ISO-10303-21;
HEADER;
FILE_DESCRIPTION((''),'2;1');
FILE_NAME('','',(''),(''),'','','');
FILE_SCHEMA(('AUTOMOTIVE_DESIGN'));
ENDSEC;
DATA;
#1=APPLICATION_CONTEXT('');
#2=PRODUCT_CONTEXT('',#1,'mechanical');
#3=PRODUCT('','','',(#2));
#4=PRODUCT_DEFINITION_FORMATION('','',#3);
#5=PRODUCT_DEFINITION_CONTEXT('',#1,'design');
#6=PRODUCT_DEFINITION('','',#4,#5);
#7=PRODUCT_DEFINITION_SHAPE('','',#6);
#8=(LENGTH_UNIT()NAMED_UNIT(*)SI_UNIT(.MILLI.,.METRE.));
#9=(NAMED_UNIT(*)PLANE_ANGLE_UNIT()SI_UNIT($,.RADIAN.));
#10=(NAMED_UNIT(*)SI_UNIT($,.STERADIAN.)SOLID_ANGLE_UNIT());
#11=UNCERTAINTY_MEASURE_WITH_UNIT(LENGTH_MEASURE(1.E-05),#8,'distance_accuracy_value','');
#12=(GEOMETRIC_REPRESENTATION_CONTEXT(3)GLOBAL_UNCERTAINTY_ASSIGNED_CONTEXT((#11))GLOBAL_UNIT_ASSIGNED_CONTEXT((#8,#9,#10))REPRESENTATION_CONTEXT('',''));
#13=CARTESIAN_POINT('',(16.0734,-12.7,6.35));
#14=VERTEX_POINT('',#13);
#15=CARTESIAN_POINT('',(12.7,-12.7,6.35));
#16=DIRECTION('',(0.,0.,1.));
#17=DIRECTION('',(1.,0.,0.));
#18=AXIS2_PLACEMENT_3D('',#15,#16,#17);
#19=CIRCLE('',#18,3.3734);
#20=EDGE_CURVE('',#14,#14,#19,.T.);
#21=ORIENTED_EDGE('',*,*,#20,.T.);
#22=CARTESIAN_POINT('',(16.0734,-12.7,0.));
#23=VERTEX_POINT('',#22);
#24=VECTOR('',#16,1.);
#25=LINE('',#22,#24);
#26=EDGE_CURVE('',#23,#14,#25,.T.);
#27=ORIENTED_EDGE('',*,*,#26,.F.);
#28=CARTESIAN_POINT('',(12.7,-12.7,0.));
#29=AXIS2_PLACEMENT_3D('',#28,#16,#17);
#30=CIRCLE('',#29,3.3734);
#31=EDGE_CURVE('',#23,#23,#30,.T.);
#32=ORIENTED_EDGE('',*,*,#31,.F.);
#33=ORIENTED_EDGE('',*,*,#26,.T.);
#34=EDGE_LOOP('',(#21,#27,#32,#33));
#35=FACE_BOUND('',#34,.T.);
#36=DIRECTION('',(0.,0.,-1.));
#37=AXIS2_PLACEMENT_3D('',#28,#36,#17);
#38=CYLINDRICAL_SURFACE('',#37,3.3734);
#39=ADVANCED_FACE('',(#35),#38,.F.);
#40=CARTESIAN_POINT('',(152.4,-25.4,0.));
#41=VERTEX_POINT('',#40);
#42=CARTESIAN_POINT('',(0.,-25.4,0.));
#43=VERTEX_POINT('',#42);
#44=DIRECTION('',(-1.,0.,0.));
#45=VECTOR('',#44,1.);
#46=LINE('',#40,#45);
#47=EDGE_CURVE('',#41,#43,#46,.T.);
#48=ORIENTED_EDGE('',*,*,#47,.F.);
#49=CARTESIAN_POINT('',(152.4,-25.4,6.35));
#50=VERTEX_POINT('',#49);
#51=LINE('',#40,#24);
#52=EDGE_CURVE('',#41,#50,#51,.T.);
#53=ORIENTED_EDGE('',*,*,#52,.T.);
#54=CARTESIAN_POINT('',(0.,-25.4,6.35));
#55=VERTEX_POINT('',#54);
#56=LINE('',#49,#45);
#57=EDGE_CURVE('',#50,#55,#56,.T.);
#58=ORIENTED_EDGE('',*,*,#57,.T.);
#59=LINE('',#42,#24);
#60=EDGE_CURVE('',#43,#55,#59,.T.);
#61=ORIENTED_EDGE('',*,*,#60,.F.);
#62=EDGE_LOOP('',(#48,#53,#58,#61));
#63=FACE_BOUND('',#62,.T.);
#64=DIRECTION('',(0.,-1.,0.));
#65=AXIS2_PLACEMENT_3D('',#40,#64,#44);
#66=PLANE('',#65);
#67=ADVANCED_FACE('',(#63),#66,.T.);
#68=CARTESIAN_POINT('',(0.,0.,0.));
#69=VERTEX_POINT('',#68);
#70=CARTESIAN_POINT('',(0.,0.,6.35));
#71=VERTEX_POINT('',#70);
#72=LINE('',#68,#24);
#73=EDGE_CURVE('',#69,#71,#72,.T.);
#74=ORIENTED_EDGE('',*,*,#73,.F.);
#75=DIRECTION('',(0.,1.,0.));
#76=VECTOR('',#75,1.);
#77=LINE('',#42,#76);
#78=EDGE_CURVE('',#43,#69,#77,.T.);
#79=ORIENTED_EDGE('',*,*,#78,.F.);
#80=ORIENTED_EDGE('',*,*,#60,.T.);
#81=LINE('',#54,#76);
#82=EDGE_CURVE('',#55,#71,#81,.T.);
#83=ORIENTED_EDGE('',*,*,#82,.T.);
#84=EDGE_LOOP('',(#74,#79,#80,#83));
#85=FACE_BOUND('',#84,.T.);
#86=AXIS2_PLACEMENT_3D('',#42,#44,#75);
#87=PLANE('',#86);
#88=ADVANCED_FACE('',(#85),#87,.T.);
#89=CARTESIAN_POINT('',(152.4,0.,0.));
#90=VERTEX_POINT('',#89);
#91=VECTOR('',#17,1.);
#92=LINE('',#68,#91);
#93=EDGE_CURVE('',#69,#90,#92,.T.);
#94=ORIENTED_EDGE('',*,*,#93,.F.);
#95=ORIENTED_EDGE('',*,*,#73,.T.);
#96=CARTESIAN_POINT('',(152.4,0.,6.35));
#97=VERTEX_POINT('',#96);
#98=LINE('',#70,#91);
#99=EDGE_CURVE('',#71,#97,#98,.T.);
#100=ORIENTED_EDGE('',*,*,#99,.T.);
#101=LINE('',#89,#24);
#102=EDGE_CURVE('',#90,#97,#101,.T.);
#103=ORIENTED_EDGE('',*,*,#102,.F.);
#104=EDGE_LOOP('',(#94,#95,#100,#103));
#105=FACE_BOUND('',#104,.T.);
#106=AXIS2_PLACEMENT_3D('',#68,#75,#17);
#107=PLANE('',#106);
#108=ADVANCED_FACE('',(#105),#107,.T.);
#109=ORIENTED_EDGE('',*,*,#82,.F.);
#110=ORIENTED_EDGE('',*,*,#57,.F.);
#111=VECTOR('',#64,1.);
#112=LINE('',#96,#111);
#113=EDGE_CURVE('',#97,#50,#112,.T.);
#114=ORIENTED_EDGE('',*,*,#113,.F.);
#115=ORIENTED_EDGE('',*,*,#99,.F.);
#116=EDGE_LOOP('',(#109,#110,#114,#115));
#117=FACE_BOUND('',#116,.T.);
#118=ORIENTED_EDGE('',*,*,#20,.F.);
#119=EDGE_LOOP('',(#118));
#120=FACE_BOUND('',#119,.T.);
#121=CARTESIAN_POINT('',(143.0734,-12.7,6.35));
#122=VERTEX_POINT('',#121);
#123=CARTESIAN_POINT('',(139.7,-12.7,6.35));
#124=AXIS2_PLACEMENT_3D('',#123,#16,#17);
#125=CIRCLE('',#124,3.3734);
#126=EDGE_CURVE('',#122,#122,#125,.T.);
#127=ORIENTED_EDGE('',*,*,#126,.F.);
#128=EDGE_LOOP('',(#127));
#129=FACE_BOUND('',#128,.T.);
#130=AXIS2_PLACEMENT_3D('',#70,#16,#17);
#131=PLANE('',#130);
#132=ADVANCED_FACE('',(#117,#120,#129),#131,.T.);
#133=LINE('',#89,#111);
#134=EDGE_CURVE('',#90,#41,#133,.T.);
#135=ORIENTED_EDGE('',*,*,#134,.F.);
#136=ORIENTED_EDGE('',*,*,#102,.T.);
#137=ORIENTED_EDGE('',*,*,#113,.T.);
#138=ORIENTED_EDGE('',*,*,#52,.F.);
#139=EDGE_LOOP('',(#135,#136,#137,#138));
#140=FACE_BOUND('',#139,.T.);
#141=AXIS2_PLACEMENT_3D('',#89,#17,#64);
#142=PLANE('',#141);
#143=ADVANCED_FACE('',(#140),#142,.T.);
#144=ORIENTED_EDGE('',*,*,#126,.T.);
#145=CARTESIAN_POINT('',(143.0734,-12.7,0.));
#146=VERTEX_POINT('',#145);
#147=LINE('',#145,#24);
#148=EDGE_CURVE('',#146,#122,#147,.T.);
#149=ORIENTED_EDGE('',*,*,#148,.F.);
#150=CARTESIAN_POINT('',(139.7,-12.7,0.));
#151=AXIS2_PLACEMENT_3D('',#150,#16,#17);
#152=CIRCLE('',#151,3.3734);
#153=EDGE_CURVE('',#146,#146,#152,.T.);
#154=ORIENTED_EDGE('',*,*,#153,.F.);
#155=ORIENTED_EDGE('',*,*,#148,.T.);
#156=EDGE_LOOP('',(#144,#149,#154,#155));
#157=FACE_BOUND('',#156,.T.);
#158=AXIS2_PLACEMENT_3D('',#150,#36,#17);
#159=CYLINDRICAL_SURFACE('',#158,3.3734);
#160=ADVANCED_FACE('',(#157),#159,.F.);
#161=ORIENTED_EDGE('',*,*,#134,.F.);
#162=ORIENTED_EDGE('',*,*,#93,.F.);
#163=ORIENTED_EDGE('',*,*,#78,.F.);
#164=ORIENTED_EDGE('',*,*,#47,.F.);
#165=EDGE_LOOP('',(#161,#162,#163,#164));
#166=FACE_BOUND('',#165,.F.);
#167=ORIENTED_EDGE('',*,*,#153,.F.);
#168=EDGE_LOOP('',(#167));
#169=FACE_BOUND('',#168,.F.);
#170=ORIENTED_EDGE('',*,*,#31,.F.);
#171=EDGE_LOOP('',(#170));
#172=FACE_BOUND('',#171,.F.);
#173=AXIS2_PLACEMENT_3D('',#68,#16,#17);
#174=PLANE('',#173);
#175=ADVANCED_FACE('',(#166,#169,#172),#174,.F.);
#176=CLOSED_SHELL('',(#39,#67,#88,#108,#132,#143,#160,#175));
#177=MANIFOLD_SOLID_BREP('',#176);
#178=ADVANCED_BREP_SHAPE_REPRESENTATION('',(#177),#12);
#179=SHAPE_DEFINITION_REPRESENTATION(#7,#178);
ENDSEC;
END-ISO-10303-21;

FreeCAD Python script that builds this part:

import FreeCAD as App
import Part
import Sketcher
from FreeCAD import Vector
Q = App.Units.Quantity


def add_polygon(sketch, points):
    """Adds a closed chain of lines whose ends are joined by coincident constraints."""
    first, n = sketch.GeometryCount, len(points)
    for a, b in zip(points, points[1:] + points[:1]):
        sketch.addGeometry(Part.LineSegment(App.Vector(*a, 0), App.Vector(*b, 0)), False)
    for i in range(n):
        sketch.addConstraint(Sketcher.Constraint("Coincident", first + i, 2, first + (i + 1) % n, 1))

doc = App.newDocument("Part")
body = doc.addObject("PartDesign::Body", "Body")

# Sketch on XY plane
sketch1 = body.newObject("Sketcher::SketchObject", "Sketch")
sketch1.AttachmentSupport = (doc.getObject("XY_Plane"), [""])
sketch1.MapMode = "FlatFace"
add_polygon(sketch1, [(152.4, 0), (0, 0), (0, -25.4), (152.4, -25.4)])  # lines 0-3
sketch1.addGeometry(Part.Circle(Vector(12.7, -12.7, 0), Vector(0, 0, 1), 3.4), False)  # 4
sketch1.addGeometry(Part.Circle(Vector(139.7, -12.7, 0), Vector(0, 0, 1), 3.4), False)  # 5
sketch1.addConstraint(Sketcher.Constraint("Horizontal", 0))
sketch1.addConstraint(Sketcher.Constraint("Vertical", 1))
sketch1.addConstraint(Sketcher.Constraint("Horizontal", 2))
sketch1.addConstraint(Sketcher.Constraint("Vertical", 3))
sketch1.addConstraint(Sketcher.Constraint("Coincident", 0, 2, -1, 1))
sketch1.addConstraint(Sketcher.Constraint("Equal", 4, 5))
sketch1.addConstraint(Sketcher.Constraint("Horizontal", 4, 3, 5, 3))
sketch1.addConstraint(Sketcher.Constraint("DistanceX", 0, 2, 0, 1, Q("6 in")))
sketch1.addConstraint(Sketcher.Constraint("DistanceY", 1, 2, 1, 1, Q("1 in")))
sketch1.addConstraint(Sketcher.Constraint("Diameter", 4, Q("0.265622 in")))
sketch1.addConstraint(Sketcher.Constraint("DistanceX", -1, 1, 4, 3, Q("0.5 in")))
sketch1.addConstraint(Sketcher.Constraint("DistanceY", 4, 3, -1, 1, Q("0.5 in")))
sketch1.addConstraint(Sketcher.Constraint("DistanceX", 5, 3, 2, 2, Q("0.5 in")))
pad1 = body.newObject("PartDesign::Pad", "Pad")
pad1.Profile = sketch1
pad1.Length = Q("0.25 in")

doc.recompute()
